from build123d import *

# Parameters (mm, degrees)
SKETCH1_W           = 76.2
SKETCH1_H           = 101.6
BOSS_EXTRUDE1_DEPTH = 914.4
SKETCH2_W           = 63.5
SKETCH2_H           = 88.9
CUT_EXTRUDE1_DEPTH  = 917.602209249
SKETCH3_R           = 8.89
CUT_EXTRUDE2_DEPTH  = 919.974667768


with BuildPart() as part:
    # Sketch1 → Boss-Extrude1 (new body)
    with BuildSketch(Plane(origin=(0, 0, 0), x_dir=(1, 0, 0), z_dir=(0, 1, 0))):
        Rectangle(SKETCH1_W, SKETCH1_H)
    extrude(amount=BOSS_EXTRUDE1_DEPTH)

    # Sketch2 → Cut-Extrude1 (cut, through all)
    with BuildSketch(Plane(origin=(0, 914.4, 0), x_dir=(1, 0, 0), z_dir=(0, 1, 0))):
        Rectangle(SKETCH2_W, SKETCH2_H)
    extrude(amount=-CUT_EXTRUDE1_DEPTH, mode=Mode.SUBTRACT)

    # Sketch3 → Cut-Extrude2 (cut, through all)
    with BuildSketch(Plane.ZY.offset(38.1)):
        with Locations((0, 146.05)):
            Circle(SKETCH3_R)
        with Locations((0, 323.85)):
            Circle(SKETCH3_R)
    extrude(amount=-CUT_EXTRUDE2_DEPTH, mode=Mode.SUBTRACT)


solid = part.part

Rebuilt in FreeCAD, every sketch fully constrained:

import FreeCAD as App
import Part
import Sketcher

V = App.Vector
Q = App.Units.Quantity

doc = App.newDocument("Part")
body = doc.addObject("PartDesign::Body", "Body")

# Sketch on XZ plane
sketch1 = body.newObject("Sketcher::SketchObject", "Sketch")
sketch1.AttachmentSupport = (doc.getObject("XZ_Plane"), [""])
sketch1.MapMode = "FlatFace"
sketch1.addGeometry(Part.LineSegment(V(-38.1, -50.8, 0), V(-38.1, 50.8, 0)), False)
sketch1.addGeometry(Part.LineSegment(V(-38.1, 50.8, 0), V(38.1, 50.8, 0)), False)
sketch1.addGeometry(Part.LineSegment(V(38.1, 50.8, 0), V(38.1, -50.8, 0)), False)
sketch1.addGeometry(Part.LineSegment(V(38.1, -50.8, 0), V(-38.1, -50.8, 0)), False)
sketch1.addConstraint(Sketcher.Constraint("Coincident", 0, 2, 1, 1))
sketch1.addConstraint(Sketcher.Constraint("Coincident", 1, 2, 2, 1))
sketch1.addConstraint(Sketcher.Constraint("Coincident", 2, 2, 3, 1))
sketch1.addConstraint(Sketcher.Constraint("Coincident", 3, 2, 0, 1))
sketch1.addConstraint(Sketcher.Constraint("Vertical", 0))
sketch1.addConstraint(Sketcher.Constraint("Horizontal", 1))
sketch1.addConstraint(Sketcher.Constraint("Vertical", 2))
sketch1.addConstraint(Sketcher.Constraint("Horizontal", 3))
sketch1.addConstraint(Sketcher.Constraint("Symmetric", 0, 2, 2, 2, -1, 1))
sketch1.addConstraint(Sketcher.Constraint("DistanceX", 1, 1, 1, 2, Q("3 in")))
sketch1.addConstraint(Sketcher.Constraint("DistanceY", 0, 1, 0, 2, Q("4 in")))
pad1 = body.newObject("PartDesign::Pad", "Pad")
pad1.Profile = sketch1
pad1.Length = Q("36 in")
pad1.Reversed = True

# Sketch on XZ plane
sketch2 = body.newObject("Sketcher::SketchObject", "Sketch001")
sketch2.AttachmentSupport = (doc.getObject("XZ_Plane"), [""])
sketch2.MapMode = "FlatFace"
sketch2.AttachmentOffset = App.Placement(V(0, 0, -36 * 25.4), App.Rotation())
sketch2.addGeometry(Part.LineSegment(V(-31.75, -44.45, 0), V(-31.75, 44.45, 0)), False)
sketch2.addGeometry(Part.LineSegment(V(-31.75, 44.45, 0), V(31.75, 44.45, 0)), False)
sketch2.addGeometry(Part.LineSegment(V(31.75, 44.45, 0), V(31.75, -44.45, 0)), False)
sketch2.addGeometry(Part.LineSegment(V(31.75, -44.45, 0), V(-31.75, -44.45, 0)), False)
sketch2.addConstraint(Sketcher.Constraint("Coincident", 0, 2, 1, 1))
sketch2.addConstraint(Sketcher.Constraint("Coincident", 1, 2, 2, 1))
sketch2.addConstraint(Sketcher.Constraint("Coincident", 2, 2, 3, 1))
sketch2.addConstraint(Sketcher.Constraint("Coincident", 3, 2, 0, 1))
sketch2.addConstraint(Sketcher.Constraint("Vertical", 0))
sketch2.addConstraint(Sketcher.Constraint("Horizontal", 1))
sketch2.addConstraint(Sketcher.Constraint("Vertical", 2))
sketch2.addConstraint(Sketcher.Constraint("Horizontal", 3))
sketch2.addConstraint(Sketcher.Constraint("Symmetric", 0, 2, 2, 2, -1, 1))
sketch2.addConstraint(Sketcher.Constraint("DistanceX", 1, 1, 1, 2, Q("2.5 in")))
sketch2.addConstraint(Sketcher.Constraint("DistanceY", 0, 1, 0, 2, Q("3.5 in")))
pocket1 = body.newObject("PartDesign::Pocket", "Pocket")
pocket1.Profile = sketch2
pocket1.Type = "ThroughAll"
pocket1.Reversed = True

# Sketch on YZ plane
sketch3 = body.newObject("Sketcher::SketchObject", "Sketch002")
sketch3.AttachmentSupport = (doc.getObject("YZ_Plane"), [""])
sketch3.MapMode = "FlatFace"
sketch3.AttachmentOffset = App.Placement(V(0, 0, -1.5 * 25.4), App.Rotation())
sketch3.addGeometry(Part.Circle(V(146.05, 0, 0), V(0, 0, 1), 8.89), False)
sketch3.addGeometry(Part.Circle(V(323.85, 0, 0), V(0, 0, 1), 8.89), False)
sketch3.addConstraint(Sketcher.Constraint("Equal", 0, 1))
sketch3.addConstraint(Sketcher.Constraint("PointOnObject", 0, 3, -1))
sketch3.addConstraint(Sketcher.Constraint("PointOnObject", 1, 3, -1))
sketch3.addConstraint(Sketcher.Constraint("Diameter", 0, Q("0.7 in")))
sketch3.addConstraint(Sketcher.Constraint("DistanceX", 0, 3, 1, 3, Q("7 in")))
sketch3.addConstraint(Sketcher.Constraint("DistanceX", -1, 1, 0, 3, Q("5.75 in")))
pocket2 = body.newObject("PartDesign::Pocket", "Pocket001")
pocket2.Profile = sketch3
pocket2.Type = "ThroughAll"
pocket2.Reversed = True

doc.recompute()
